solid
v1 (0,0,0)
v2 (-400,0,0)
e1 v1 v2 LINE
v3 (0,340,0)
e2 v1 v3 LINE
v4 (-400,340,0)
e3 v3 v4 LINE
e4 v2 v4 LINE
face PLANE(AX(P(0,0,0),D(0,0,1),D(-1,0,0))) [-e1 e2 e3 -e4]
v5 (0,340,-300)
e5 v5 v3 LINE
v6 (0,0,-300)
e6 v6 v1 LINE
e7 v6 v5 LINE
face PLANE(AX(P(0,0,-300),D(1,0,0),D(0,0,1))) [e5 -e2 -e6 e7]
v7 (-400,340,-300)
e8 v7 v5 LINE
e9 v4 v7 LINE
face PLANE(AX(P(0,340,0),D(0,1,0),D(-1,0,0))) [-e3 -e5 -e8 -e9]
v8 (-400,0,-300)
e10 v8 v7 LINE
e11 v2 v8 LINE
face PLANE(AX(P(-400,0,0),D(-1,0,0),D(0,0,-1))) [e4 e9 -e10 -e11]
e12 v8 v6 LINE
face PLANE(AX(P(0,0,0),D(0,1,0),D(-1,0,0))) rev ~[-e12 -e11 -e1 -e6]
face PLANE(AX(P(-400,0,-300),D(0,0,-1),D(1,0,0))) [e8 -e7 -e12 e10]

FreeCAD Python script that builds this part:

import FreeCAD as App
import Part
import Sketcher
Q = App.Units.Quantity

doc = App.newDocument("Part")
body = doc.addObject("PartDesign::Body", "Body")

sketch1 = body.newObject("Sketcher::SketchObject", "Sketch")
sketch1.AttachmentSupport = (doc.getObject("XZ_Plane"), [""])
sketch1.MapMode = "FlatFace"
sketch1.addGeometry([
    Part.LineSegment(App.Vector(-400, 0, 0), App.Vector(0, 0, 0)),
    Part.LineSegment(App.Vector(0, 0, 0), App.Vector(0, -300, 0)),
    Part.LineSegment(App.Vector(0, -300, 0), App.Vector(-400, -300, 0)),
    Part.LineSegment(App.Vector(-400, -300, 0), App.Vector(-400, 0, 0)),
], False)
sketch1.addConstraint([
    Sketcher.Constraint("Coincident", 0, 2, 1, 1),
    Sketcher.Constraint("Coincident", 1, 2, 2, 1),
    Sketcher.Constraint("Coincident", 2, 2, 3, 1),
    Sketcher.Constraint("Coincident", 3, 2, 0, 1),
    Sketcher.Constraint("Horizontal", 0),
    Sketcher.Constraint("Vertical", 1),
    Sketcher.Constraint("Horizontal", 2),
    Sketcher.Constraint("Vertical", 3),
    Sketcher.Constraint("Coincident", 0, 2, -1, 1),
    Sketcher.Constraint("DistanceX", 0, 1, 0, 2, Q("400 mm")),
    Sketcher.Constraint("DistanceY", 1, 2, 1, 1, Q("300 mm")),
])
pad1 = body.newObject("PartDesign::Pad", "Pad")
pad1.Profile = sketch1
pad1.Length = 340
pad1.Reversed = True

doc.recompute()
